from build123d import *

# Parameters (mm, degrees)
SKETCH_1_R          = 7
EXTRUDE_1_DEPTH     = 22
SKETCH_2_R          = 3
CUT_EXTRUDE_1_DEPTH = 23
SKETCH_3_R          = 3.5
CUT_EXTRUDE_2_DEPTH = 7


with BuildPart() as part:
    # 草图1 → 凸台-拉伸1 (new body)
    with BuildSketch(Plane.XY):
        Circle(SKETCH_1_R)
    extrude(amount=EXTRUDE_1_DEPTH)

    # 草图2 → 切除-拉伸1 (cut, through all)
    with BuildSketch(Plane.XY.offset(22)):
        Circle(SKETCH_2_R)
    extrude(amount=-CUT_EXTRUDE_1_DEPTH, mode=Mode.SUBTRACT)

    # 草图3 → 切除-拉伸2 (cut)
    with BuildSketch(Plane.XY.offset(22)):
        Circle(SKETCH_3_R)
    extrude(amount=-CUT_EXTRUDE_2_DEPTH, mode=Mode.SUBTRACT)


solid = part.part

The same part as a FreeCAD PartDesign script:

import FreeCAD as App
import Part
import Sketcher
from FreeCAD import Vector
Q = App.Units.Quantity

doc = App.newDocument("Part")
body = doc.addObject("PartDesign::Body", "Body")

sketch1 = doc.addObject("Sketcher::SketchObject", "Sketch")
body.addObject(sketch1)
sketch1.AttachmentSupport = (doc.XY_Plane, [""])
sketch1.MapMode = "FlatFace"
sketch1.addGeometry(Part.Circle(Vector(0, 0, 0), Vector(0, 0, 1), 7), False)
sketch1.addConstraint(Sketcher.Constraint("Coincident", 0, 3, -1, 1))
sketch1.addConstraint(Sketcher.Constraint("Diameter", 0, Q("14 mm")))
pad1 = doc.addObject("PartDesign::Pad", "Pad")
body.addObject(pad1)
pad1.Profile = sketch1
pad1.Length = 22

sketch2 = doc.addObject("Sketcher::SketchObject", "Sketch001")
body.addObject(sketch2)
sketch2.AttachmentSupport = (doc.XY_Plane, [""])
sketch2.MapMode = "FlatFace"
sketch2.AttachmentOffset = App.Placement(Vector(0, 0, 22), App.Rotation())
sketch2.addGeometry(Part.Circle(Vector(0, 0, 0), Vector(0, 0, 1), 3), False)
sketch2.addConstraint(Sketcher.Constraint("Coincident", 0, 3, -1, 1))
sketch2.addConstraint(Sketcher.Constraint("Diameter", 0, Q("6 mm")))
pocket1 = doc.addObject("PartDesign::Pocket", "Pocket")
body.addObject(pocket1)
pocket1.Profile = sketch2
pocket1.Type = "ThroughAll"

sketch3 = doc.addObject("Sketcher::SketchObject", "Sketch002")
body.addObject(sketch3)
sketch3.AttachmentSupport = (doc.XY_Plane, [""])
sketch3.MapMode = "FlatFace"
sketch3.AttachmentOffset = App.Placement(Vector(0, 0, 22), App.Rotation())
sketch3.addGeometry(Part.Circle(Vector(0, 0, 0), Vector(0, 0, 1), 3.5), False)
sketch3.addConstraint(Sketcher.Constraint("Coincident", 0, 3, -1, 1))
sketch3.addConstraint(Sketcher.Constraint("Diameter", 0, Q("7 mm")))
pocket2 = doc.addObject("PartDesign::Pocket", "Pocket001")
body.addObject(pocket2)
pocket2.Profile = sketch3
pocket2.Length = 7

doc.recompute()
